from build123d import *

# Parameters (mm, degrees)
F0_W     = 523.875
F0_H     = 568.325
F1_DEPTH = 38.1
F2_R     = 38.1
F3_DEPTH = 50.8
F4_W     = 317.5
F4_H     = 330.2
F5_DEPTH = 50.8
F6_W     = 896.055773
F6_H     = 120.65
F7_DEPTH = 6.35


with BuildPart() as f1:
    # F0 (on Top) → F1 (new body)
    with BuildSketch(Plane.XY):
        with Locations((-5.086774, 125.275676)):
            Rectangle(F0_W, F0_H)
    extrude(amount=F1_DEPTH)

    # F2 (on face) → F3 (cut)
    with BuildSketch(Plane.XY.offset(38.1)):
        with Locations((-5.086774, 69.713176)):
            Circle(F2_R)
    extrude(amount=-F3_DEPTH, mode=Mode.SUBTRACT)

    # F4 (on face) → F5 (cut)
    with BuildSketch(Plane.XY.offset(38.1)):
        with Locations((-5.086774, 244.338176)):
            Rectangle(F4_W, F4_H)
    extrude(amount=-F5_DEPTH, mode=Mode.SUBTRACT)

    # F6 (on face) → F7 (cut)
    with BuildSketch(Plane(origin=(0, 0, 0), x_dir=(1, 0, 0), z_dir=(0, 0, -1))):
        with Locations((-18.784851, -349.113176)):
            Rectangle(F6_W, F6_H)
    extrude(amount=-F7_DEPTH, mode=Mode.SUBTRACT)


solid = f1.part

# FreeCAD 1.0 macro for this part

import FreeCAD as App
import Part
import Sketcher
from FreeCAD import Vector
Q = App.Units.Quantity


def add_polygon(sketch, points):
    """Adds a closed chain of lines whose ends are joined by coincident constraints."""
    first, n = sketch.GeometryCount, len(points)
    for a, b in zip(points, points[1:] + points[:1]):
        sketch.addGeometry(Part.LineSegment(App.Vector(*a, 0), App.Vector(*b, 0)), False)
    for i in range(n):
        sketch.addConstraint(Sketcher.Constraint("Coincident", first + i, 2, first + (i + 1) % n, 1))

doc = App.newDocument("Part")
body = doc.addObject("PartDesign::Body", "Body")

# Sketch on XY plane
sketch1 = body.newObject("Sketcher::SketchObject", "Sketch")
sketch1.AttachmentSupport = (doc.getObject("XY_Plane"), [""])
sketch1.MapMode = "FlatFace"
add_polygon(sketch1, [(-267, 409), (-267, -159), (257, -159), (257, 409)])  # lines 0-3
sketch1.addConstraint(Sketcher.Constraint("Vertical", 0))
sketch1.addConstraint(Sketcher.Constraint("Horizontal", 1))
sketch1.addConstraint(Sketcher.Constraint("Vertical", 2))
sketch1.addConstraint(Sketcher.Constraint("Horizontal", 3))
sketch1.addConstraint(Sketcher.Constraint("DistanceX", 1, 1, 1, 2, Q("20.625 in")))
sketch1.addConstraint(Sketcher.Constraint("DistanceY", 0, 2, 0, 1, Q("22.375 in")))
sketch1.addConstraint(Sketcher.Constraint("DistanceX", 0, 2, -1, 1, Q("267.024274 mm")))
sketch1.addConstraint(Sketcher.Constraint("DistanceY", 0, 2, -1, 1, Q("158.886824 mm")))
pad1 = body.newObject("PartDesign::Pad", "Pad")
pad1.Profile = sketch1
pad1.Length = Q("1.5 in")

# Sketch on XY plane
sketch2 = body.newObject("Sketcher::SketchObject", "Sketch001")
sketch2.AttachmentSupport = (doc.getObject("XY_Plane"), [""])
sketch2.MapMode = "FlatFace"
sketch2.AttachmentOffset = App.Placement(Vector(0, 0, 1.5 * 25.4), App.Rotation())
sketch2.addGeometry(Part.Circle(Vector(-5, 70, 0), Vector(0, 0, 1), 38), False)
sketch2.addConstraint(Sketcher.Constraint("Diameter", 0, Q("3 in")))
sketch2.addConstraint(Sketcher.Constraint("DistanceX", 0, 3, -1, 1, Q("5.086774 mm")))
sketch2.addConstraint(Sketcher.Constraint("DistanceY", -1, 1, 0, 3, Q("69.713176 mm")))
pocket1 = body.newObject("PartDesign::Pocket", "Pocket")
pocket1.Profile = sketch2
pocket1.Length = Q("2 in")

# Sketch on XY plane
sketch3 = body.newObject("Sketcher::SketchObject", "Sketch002")
sketch3.AttachmentSupport = (doc.getObject("XY_Plane"), [""])
sketch3.MapMode = "FlatFace"
sketch3.AttachmentOffset = App.Placement(Vector(0, 0, 1.5 * 25.4), App.Rotation())
add_polygon(sketch3, [(-164, 409), (-164, 79), (154, 79), (154, 409)])  # lines 0-3
sketch3.addConstraint(Sketcher.Constraint("Vertical", 0))
sketch3.addConstraint(Sketcher.Constraint("Horizontal", 1))
sketch3.addConstraint(Sketcher.Constraint("Vertical", 2))
sketch3.addConstraint(Sketcher.Constraint("Horizontal", 3))
sketch3.addConstraint(Sketcher.Constraint("DistanceY", 0, 2, 0, 1, Q("13 in")))
sketch3.addConstraint(Sketcher.Constraint("DistanceX", 1, 1, 1, 2, Q("12.5 in")))
sketch3.addConstraint(Sketcher.Constraint("DistanceX", 0, 2, -1, 1, Q("163.836774 mm")))
sketch3.addConstraint(Sketcher.Constraint("DistanceY", -1, 1, 0, 2, Q("79.238176 mm")))
pocket2 = body.newObject("PartDesign::Pocket", "Pocket001")
pocket2.Profile = sketch3
pocket2.Length = Q("2 in")

# Sketch on XY plane
sketch4 = body.newObject("Sketcher::SketchObject", "Sketch003")
sketch4.AttachmentSupport = (doc.getObject("XY_Plane"), [""])
sketch4.MapMode = "FlatFace"
add_polygon(sketch4, [(-467, 289), (-467, 409), (429, 409), (429, 289)])  # lines 0-3
sketch4.addConstraint(Sketcher.Constraint("Vertical", 0))
sketch4.addConstraint(Sketcher.Constraint("Horizontal", 1))
sketch4.addConstraint(Sketcher.Constraint("Vertical", 2))
sketch4.addConstraint(Sketcher.Constraint("Horizontal", 3))
sketch4.addConstraint(Sketcher.Constraint("DistanceY", 0, 1, 0, 2, Q("4.75 in")))
sketch4.addConstraint(Sketcher.Constraint("DistanceX", 1, 1, 1, 2, Q("896.055773 mm")))
sketch4.addConstraint(Sketcher.Constraint("DistanceX", 0, 2, -1, 1, Q("466.812738 mm")))
sketch4.addConstraint(Sketcher.Constraint("DistanceY", -1, 1, 0, 2, Q("409.438176 mm")))
pocket3 = body.newObject("PartDesign::Pocket", "Pocket002")
pocket3.Profile = sketch4
pocket3.Length = Q("0.25 in")
pocket3.Reversed = True

doc.recompute()
